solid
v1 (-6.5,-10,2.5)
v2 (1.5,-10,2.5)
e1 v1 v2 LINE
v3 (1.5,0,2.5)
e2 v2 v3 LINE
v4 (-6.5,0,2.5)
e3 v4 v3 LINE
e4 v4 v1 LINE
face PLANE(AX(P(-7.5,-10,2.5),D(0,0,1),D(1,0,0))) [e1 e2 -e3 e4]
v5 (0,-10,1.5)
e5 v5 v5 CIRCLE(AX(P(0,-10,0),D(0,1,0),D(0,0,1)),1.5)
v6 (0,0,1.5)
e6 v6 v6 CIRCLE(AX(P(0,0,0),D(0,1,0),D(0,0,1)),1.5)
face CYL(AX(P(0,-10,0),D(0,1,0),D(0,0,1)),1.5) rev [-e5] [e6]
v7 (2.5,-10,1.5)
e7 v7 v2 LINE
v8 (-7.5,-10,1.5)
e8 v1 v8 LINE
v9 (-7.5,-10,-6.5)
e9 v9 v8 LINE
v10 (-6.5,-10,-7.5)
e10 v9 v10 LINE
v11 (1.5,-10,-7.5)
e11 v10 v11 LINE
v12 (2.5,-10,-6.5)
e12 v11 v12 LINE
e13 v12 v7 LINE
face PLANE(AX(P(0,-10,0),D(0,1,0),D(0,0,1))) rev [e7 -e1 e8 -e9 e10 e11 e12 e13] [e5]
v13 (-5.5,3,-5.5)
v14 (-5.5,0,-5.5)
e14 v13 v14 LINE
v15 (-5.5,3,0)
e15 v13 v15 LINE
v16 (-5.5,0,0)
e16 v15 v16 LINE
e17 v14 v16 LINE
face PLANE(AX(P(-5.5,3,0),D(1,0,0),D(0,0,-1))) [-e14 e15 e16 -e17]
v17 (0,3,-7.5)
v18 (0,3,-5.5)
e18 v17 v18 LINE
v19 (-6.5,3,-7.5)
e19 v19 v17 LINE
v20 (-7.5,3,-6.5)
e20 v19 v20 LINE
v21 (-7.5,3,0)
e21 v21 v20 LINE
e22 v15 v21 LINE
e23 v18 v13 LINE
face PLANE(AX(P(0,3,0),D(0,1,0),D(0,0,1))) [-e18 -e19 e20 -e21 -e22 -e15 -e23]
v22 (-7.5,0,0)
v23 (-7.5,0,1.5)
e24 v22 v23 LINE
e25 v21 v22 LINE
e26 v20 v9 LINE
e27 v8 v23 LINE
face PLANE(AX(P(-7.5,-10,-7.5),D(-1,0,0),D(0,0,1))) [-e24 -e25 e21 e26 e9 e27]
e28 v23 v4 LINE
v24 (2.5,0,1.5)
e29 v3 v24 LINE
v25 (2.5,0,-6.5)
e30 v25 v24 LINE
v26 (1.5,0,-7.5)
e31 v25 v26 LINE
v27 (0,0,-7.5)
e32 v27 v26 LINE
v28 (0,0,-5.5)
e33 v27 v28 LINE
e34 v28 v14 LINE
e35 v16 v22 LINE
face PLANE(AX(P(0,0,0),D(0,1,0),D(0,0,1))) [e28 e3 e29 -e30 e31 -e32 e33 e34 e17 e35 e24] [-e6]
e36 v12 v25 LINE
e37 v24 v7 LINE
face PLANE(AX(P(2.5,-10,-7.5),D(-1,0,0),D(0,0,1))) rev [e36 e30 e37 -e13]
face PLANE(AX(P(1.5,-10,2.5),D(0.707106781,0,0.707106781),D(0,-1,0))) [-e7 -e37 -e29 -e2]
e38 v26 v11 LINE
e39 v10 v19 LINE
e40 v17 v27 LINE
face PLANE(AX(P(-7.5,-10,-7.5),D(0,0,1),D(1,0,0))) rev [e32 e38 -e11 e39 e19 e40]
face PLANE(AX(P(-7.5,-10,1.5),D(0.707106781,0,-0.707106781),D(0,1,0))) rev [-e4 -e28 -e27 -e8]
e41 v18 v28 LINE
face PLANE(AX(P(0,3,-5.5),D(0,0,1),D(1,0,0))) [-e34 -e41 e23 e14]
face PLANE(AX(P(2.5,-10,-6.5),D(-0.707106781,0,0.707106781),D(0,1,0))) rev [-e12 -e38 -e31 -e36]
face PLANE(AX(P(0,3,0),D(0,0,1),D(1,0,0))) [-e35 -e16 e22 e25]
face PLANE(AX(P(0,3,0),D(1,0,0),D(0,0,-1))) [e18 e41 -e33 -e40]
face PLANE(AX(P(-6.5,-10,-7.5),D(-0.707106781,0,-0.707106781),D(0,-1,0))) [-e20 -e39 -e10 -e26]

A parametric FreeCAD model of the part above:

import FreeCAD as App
import Part
import Sketcher
from FreeCAD import Vector


def edges_at(feature, points):
    """Names of the edges that pass closest to the given points."""
    edges = feature.Shape.Edges
    near = lambda p: min(range(len(edges)), key=lambda i: edges[i].distToShape(Part.Vertex(*p))[0])
    return sorted({f"Edge{near(p) + 1}" for p in points})


def add_polygon(sketch, points):
    """Adds a closed chain of lines whose ends are joined by coincident constraints."""
    first, n = sketch.GeometryCount, len(points)
    for a, b in zip(points, points[1:] + points[:1]):
        sketch.addGeometry(Part.LineSegment(App.Vector(*a, 0), App.Vector(*b, 0)), False)
    for i in range(n):
        sketch.addConstraint(Sketcher.Constraint("Coincident", first + i, 2, first + (i + 1) % n, 1))

doc = App.newDocument("Part")
body = doc.addObject("PartDesign::Body", "Body")

# Sketch on XZ plane
sketch1 = body.newObject("Sketcher::SketchObject", "Sketch")
sketch1.AttachmentSupport = (doc.getObject("XZ_Plane"), [""])
sketch1.MapMode = "FlatFace"
add_polygon(sketch1, [(-7.5, -7.5), (-7.5, 2.5), (2.5, 2.5), (2.5, -7.5)])  # lines 0-3
sketch1.addConstraint(Sketcher.Constraint("Vertical", 0))
sketch1.addConstraint(Sketcher.Constraint("Horizontal", 1))
sketch1.addConstraint(Sketcher.Constraint("Vertical", 2))
sketch1.addConstraint(Sketcher.Constraint("Horizontal", 3))
sketch1.addConstraint(Sketcher.Constraint("Equal", 3, 0))
sketch1.addConstraint(Sketcher.Constraint("DistanceX", 1, 1, 1, 2, 10.0))
sketch1.addConstraint(Sketcher.Constraint("DistanceX", 0, 2, -1, 1, 7.5))
sketch1.addConstraint(Sketcher.Constraint("DistanceY", -1, 1, 0, 2, 2.5))
pad1 = body.newObject("PartDesign::Pad", "Pad")
pad1.Profile = sketch1
pad1.Length = 10

# Sketch on XZ plane
sketch2 = body.newObject("Sketcher::SketchObject", "Sketch001")
sketch2.AttachmentSupport = (doc.getObject("XZ_Plane"), [""])
sketch2.MapMode = "FlatFace"
add_polygon(sketch2, [(0, -5.5), (0, -7.5), (-7.5, -7.5), (-7.5, 0), (-5.5, 0), (-5.5, -5.5)])  # lines 0-5
sketch2.addConstraint(Sketcher.Constraint("Vertical", 0))
sketch2.addConstraint(Sketcher.Constraint("Horizontal", 1))
sketch2.addConstraint(Sketcher.Constraint("Vertical", 2))
sketch2.addConstraint(Sketcher.Constraint("Horizontal", 3))
sketch2.addConstraint(Sketcher.Constraint("Vertical", 4))
sketch2.addConstraint(Sketcher.Constraint("Horizontal", 5))
sketch2.addConstraint(Sketcher.Constraint("PointOnObject", 0, 2, -2))
sketch2.addConstraint(Sketcher.Constraint("PointOnObject", 2, 2, -1))
sketch2.addConstraint(Sketcher.Constraint("Equal", 3, 0))
sketch2.addConstraint(Sketcher.Constraint("Equal", 1, 2))
sketch2.addConstraint(Sketcher.Constraint("DistanceX", 3, 1, 3, 2, 2.0))
sketch2.addConstraint(Sketcher.Constraint("DistanceX", 1, 2, 1, 1, 7.5))
pad2 = body.newObject("PartDesign::Pad", "Pad001")
pad2.Profile = sketch2
pad2.Length = 3
pad2.Reversed = True
doc.recompute()

chamfer = body.newObject("PartDesign::Chamfer", "Chamfer")
chamfer.Base = (pad2, edges_at(pad2, [
    (-7.5, -3.5, -7.5),
    (2.5, -5, -7.5),
    (2.5, -5, 2.5),
    (-7.5, -5, 2.5),
]))
chamfer.Size = 1

# Sketch on XZ plane
sketch3 = body.newObject("Sketcher::SketchObject", "Sketch002")
sketch3.AttachmentSupport = (doc.getObject("XZ_Plane"), [""])
sketch3.MapMode = "FlatFace"
sketch3.addGeometry(Part.Circle(Vector(0, 0, 0), Vector(0, 0, 1), 1.5), False)
sketch3.addConstraint(Sketcher.Constraint("Coincident", 0, 3, -1, 1))
sketch3.addConstraint(Sketcher.Constraint("Diameter", 0, 3.0))
pocket1 = body.newObject("PartDesign::Pocket", "Pocket")
pocket1.Profile = sketch3
pocket1.Type = "ThroughAll"
pocket1.Reversed = True

doc.recompute()
